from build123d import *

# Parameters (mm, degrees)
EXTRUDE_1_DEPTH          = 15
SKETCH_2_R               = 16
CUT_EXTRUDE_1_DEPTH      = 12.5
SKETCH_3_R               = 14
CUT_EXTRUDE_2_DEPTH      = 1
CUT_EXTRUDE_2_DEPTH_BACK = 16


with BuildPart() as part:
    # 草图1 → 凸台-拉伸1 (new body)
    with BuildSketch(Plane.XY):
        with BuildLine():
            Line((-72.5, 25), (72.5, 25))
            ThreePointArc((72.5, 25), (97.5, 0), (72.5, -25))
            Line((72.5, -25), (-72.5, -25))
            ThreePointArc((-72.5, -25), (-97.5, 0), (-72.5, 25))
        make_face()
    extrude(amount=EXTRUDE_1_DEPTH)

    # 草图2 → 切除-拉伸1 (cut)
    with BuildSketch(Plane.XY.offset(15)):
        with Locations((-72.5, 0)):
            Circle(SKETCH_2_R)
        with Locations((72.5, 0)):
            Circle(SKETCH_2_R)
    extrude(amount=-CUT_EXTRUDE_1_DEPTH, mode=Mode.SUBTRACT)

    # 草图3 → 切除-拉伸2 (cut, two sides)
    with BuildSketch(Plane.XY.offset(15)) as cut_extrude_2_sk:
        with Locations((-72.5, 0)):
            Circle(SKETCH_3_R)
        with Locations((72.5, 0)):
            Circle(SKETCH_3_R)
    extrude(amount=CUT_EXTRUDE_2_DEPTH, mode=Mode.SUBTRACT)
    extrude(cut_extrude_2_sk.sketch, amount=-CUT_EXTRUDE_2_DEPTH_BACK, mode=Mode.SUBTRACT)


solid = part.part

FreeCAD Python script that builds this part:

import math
import FreeCAD as App
import Part
import Sketcher
Q = App.Units.Quantity

doc = App.newDocument("Part")
params = doc.addObject("Spreadsheet::Sheet", "Params")
for row, (alias, value) in enumerate([
    ("sketch1_radius", "25 mm"),
    ("sketch1_width", "145 mm"),
    ("pad1_length", "15 mm"),
    ("sketch2_diameter", "32 mm"),
    ("pocket1_length", "12.5 mm"),
    ("sketch3_diameter", "28 mm"),
], start=1):
    params.set(f"A{row}", alias)
    params.set(f"B{row}", "=" + value)
    params.setAlias(f"B{row}", alias)

body = doc.addObject("PartDesign::Body", "Body")

sketch1 = body.newObject("Sketcher::SketchObject", "Sketch")
sketch1.AttachmentSupport = (doc.getObject("XY_Plane"), [""])
sketch1.MapMode = "FlatFace"
sketch1.addGeometry(Part.LineSegment(App.Vector(72, 25, 0), App.Vector(-72, 25, 0)), False)
sketch1.addGeometry(Part.ArcOfCircle(Part.Circle(App.Vector(-72, 0, 0), App.Vector(0, 0, 1), 25), math.radians(90), math.radians(270)), False)
sketch1.addGeometry(Part.LineSegment(App.Vector(-72, -25, 0), App.Vector(72, -25, 0)), False)
sketch1.addGeometry(Part.ArcOfCircle(Part.Circle(App.Vector(72, 0, 0), App.Vector(0, 0, 1), 25), math.radians(-90), math.radians(90)), False)
sketch1.addConstraint(Sketcher.Constraint("Tangent", 0, 2, 1, 1))
sketch1.addConstraint(Sketcher.Constraint("Tangent", 1, 2, 2, 1))
sketch1.addConstraint(Sketcher.Constraint("Tangent", 2, 2, 3, 1))
sketch1.addConstraint(Sketcher.Constraint("Tangent", 3, 2, 0, 1))
sketch1.addConstraint(Sketcher.Constraint("Horizontal", 0))
sketch1.addConstraint(Sketcher.Constraint("Horizontal", 2))
sketch1.addConstraint(Sketcher.Constraint("Symmetric", 1, 3, 3, 3, -1, 1))
sketch1.addConstraint(Sketcher.Constraint("Radius", 1, Q("25 mm")))
sketch1.addConstraint(Sketcher.Constraint("DistanceX", 0, 2, 0, 1, Q("145 mm")))
sketch1.setExpression("Constraints[7]", "Params.sketch1_radius")
sketch1.setExpression("Constraints[8]", "Params.sketch1_width")
pad1 = body.newObject("PartDesign::Pad", "Pad")
pad1.Profile = sketch1
pad1.setExpression("Length", "Params.pad1_length")

sketch2 = body.newObject("Sketcher::SketchObject", "Sketch001")
sketch2.AttachmentSupport = (doc.getObject("XY_Plane"), [""])
sketch2.MapMode = "FlatFace"
sketch2.AttachmentOffset = App.Placement(App.Vector(0, 0, 15), App.Rotation())
sketch2.addGeometry(Part.Circle(App.Vector(-72, 0, 0), App.Vector(0, 0, 1), 16), False)
sketch2.addGeometry(Part.Circle(App.Vector(72, 0, 0), App.Vector(0, 0, 1), 16), False)
sketch2.addConstraint(Sketcher.Constraint("Equal", 0, 1))
sketch2.addConstraint(Sketcher.Constraint("Symmetric", 0, 3, 1, 3, -1, 1))
sketch2.addConstraint(Sketcher.Constraint("PointOnObject", 0, 3, -1))
sketch2.addConstraint(Sketcher.Constraint("Diameter", 0, Q("32 mm")))
sketch2.addConstraint(Sketcher.Constraint("DistanceX", 0, 3, 1, 3, Q("145 mm")))
sketch2.setExpression("Constraints[3]", "Params.sketch2_diameter")
pocket1 = body.newObject("PartDesign::Pocket", "Pocket")
pocket1.Profile = sketch2
pocket1.setExpression("Length", "Params.pocket1_length")

sketch3 = body.newObject("Sketcher::SketchObject", "Sketch002")
sketch3.AttachmentSupport = (doc.getObject("XY_Plane"), [""])
sketch3.MapMode = "FlatFace"
sketch3.AttachmentOffset = App.Placement(App.Vector(0, 0, 15), App.Rotation())
sketch3.addGeometry(Part.Circle(App.Vector(-72, 0, 0), App.Vector(0, 0, 1), 14), False)
sketch3.addGeometry(Part.Circle(App.Vector(72, 0, 0), App.Vector(0, 0, 1), 14), False)
sketch3.addConstraint(Sketcher.Constraint("Equal", 0, 1))
sketch3.addConstraint(Sketcher.Constraint("Symmetric", 0, 3, 1, 3, -1, 1))
sketch3.addConstraint(Sketcher.Constraint("PointOnObject", 0, 3, -1))
sketch3.addConstraint(Sketcher.Constraint("Diameter", 0, Q("28 mm")))
sketch3.addConstraint(Sketcher.Constraint("DistanceX", 0, 3, 1, 3, Q("145 mm")))
sketch3.setExpression("Constraints[3]", "Params.sketch3_diameter")
pocket2 = body.newObject("PartDesign::Pocket", "Pocket001")
pocket2.Profile = sketch3
pocket2.Type = "ThroughAll"
pocket2.Midplane = True

doc.recompute()
